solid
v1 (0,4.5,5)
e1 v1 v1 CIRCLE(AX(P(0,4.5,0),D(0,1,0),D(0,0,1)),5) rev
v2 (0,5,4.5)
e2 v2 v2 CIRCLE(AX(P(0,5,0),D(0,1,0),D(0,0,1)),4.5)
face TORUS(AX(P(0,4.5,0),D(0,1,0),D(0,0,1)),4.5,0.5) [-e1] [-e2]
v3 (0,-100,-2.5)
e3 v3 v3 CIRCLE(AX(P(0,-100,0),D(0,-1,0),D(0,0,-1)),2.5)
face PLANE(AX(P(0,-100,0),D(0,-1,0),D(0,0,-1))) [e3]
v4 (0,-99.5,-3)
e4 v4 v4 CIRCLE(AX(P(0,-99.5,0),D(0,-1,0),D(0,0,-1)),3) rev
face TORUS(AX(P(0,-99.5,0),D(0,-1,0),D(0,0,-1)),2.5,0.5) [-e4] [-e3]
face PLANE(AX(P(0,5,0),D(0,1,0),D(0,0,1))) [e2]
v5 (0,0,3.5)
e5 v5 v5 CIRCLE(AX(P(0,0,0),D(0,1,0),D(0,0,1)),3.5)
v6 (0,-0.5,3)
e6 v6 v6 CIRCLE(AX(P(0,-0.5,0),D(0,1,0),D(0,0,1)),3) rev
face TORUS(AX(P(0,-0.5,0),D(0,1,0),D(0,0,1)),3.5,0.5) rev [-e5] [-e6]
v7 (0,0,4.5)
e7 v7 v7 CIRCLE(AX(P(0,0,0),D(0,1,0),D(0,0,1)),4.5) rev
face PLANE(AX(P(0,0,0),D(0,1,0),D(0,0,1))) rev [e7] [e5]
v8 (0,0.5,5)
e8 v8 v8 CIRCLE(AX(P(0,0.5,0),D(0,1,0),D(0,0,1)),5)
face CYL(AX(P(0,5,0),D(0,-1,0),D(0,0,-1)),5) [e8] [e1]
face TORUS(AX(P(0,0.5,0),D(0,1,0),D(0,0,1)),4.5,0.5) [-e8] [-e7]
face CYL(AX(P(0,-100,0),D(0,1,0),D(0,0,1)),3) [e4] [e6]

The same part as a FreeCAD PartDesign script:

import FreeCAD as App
import Part
import Sketcher
from FreeCAD import Vector


def edges_at(feature, points):
    """Names of the edges that pass closest to the given points."""
    edges = feature.Shape.Edges
    near = lambda p: min(range(len(edges)), key=lambda i: edges[i].distToShape(Part.Vertex(*p))[0])
    return sorted({f"Edge{near(p) + 1}" for p in points})

doc = App.newDocument("Part")
body = doc.addObject("PartDesign::Body", "Body")

sketch1 = body.newObject("Sketcher::SketchObject", "Sketch")
sketch1.AttachmentSupport = (doc.getObject("XZ_Plane"), [""])
sketch1.MapMode = "FlatFace"
sketch1.addGeometry(Part.Circle(Vector(0, 0, 0), Vector(0, 0, 1), 5), False)
sketch1.addConstraint([
    Sketcher.Constraint("Coincident", 0, 3, -1, 1),
    Sketcher.Constraint("Diameter", 0, 10.0),
])
pad1 = body.newObject("PartDesign::Pad", "Pad")
pad1.Profile = sketch1
pad1.Length = 5
pad1.Reversed = True

sketch2 = body.newObject("Sketcher::SketchObject", "Sketch001")
sketch2.AttachmentSupport = (doc.getObject("XZ_Plane"), [""])
sketch2.MapMode = "FlatFace"
sketch2.addGeometry(Part.Circle(Vector(0, 0, 0), Vector(0, 0, 1), 3), False)
sketch2.addConstraint([
    Sketcher.Constraint("Coincident", 0, 3, -1, 1),
    Sketcher.Constraint("Diameter", 0, 6.0),
])
pad2 = body.newObject("PartDesign::Pad", "Pad001")
pad2.Profile = sketch2
pad2.Length = 100
doc.recompute()

fillet = body.newObject("PartDesign::Fillet", "Fillet")
fillet.Base = (pad2, edges_at(pad2, [
    (0, 0, -5),
    (0, 5, -5),
    (0, 0, -3),
    (0, -100, -3),
]))
fillet.Radius = 0.5

doc.recompute()
